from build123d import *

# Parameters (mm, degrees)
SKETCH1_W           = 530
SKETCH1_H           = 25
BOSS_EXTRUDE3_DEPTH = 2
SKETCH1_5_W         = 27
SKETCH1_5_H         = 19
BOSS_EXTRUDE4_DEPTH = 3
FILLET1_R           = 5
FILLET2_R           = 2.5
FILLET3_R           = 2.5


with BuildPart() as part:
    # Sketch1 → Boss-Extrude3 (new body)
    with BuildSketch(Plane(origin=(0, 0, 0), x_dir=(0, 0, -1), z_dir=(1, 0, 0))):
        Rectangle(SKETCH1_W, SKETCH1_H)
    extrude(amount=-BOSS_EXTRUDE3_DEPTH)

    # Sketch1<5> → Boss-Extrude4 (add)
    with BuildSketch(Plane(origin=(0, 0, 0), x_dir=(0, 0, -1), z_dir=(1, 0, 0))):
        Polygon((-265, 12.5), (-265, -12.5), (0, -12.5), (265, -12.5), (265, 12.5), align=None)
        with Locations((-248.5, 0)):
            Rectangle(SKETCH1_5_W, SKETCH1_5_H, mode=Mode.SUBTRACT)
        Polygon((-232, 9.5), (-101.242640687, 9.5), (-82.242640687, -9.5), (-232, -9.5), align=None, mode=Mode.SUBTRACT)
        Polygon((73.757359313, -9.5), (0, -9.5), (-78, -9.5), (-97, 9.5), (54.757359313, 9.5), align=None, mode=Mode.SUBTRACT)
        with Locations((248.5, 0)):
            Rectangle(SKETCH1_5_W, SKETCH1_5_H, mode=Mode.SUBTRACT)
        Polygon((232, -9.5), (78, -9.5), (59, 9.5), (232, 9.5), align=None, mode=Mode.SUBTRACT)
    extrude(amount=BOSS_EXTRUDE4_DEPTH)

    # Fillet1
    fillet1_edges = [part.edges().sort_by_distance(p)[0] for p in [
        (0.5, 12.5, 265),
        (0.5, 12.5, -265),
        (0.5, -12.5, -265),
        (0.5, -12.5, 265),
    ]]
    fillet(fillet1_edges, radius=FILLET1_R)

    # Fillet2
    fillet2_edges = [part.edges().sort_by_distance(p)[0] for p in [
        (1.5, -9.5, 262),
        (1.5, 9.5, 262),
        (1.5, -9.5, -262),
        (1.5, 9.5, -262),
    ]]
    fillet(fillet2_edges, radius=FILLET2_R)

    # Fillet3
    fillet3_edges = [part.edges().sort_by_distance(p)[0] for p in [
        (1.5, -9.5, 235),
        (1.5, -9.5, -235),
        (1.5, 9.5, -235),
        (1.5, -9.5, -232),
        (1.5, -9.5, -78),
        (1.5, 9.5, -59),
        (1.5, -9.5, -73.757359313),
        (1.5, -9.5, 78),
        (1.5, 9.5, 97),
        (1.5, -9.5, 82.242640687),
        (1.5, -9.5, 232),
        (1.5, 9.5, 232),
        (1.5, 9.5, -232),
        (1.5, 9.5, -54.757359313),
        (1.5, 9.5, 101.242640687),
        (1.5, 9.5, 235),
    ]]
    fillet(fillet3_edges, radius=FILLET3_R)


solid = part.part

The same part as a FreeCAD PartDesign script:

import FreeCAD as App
import Part
import Sketcher
Q = App.Units.Quantity


def edges_at(feature, points):
    """Names of the edges that pass closest to the given points."""
    edges = feature.Shape.Edges
    near = lambda p: min(range(len(edges)), key=lambda i: edges[i].distToShape(Part.Vertex(*p))[0])
    return sorted({f"Edge{near(p) + 1}" for p in points})

doc = App.newDocument("Part")
body = doc.addObject("PartDesign::Body", "Body")

sketch1 = body.newObject("Sketcher::SketchObject", "Sketch")
sketch1.AttachmentSupport = (doc.getObject("YZ_Plane"), [""])
sketch1.MapMode = "FlatFace"
sketch1.addGeometry([
    Part.LineSegment(App.Vector(12.5, 265, 0), App.Vector(-12.5, 265, 0)),
    Part.LineSegment(App.Vector(-12.5, 265, 0), App.Vector(-12.5, -265, 0)),
    Part.LineSegment(App.Vector(-12.5, -265, 0), App.Vector(12.5, -265, 0)),
    Part.LineSegment(App.Vector(12.5, -265, 0), App.Vector(12.5, 265, 0)),
], False)
sketch1.addConstraint([
    Sketcher.Constraint("Coincident", 0, 2, 1, 1),
    Sketcher.Constraint("Coincident", 1, 2, 2, 1),
    Sketcher.Constraint("Coincident", 2, 2, 3, 1),
    Sketcher.Constraint("Coincident", 3, 2, 0, 1),
    Sketcher.Constraint("Horizontal", 0),
    Sketcher.Constraint("Vertical", 1),
    Sketcher.Constraint("Horizontal", 2),
    Sketcher.Constraint("Vertical", 3),
    Sketcher.Constraint("Symmetric", 0, 2, 2, 2, -1, 1),
    Sketcher.Constraint("DistanceX", 0, 2, 0, 1, Q("25 mm")),
    Sketcher.Constraint("DistanceY", 1, 2, 1, 1, Q("530 mm")),
])
pad1 = body.newObject("PartDesign::Pad", "Pad")
pad1.Profile = sketch1
pad1.Length = 2
pad1.Reversed = True

sketch2 = body.newObject("Sketcher::SketchObject", "Sketch001")
sketch2.AttachmentSupport = (doc.getObject("YZ_Plane"), [""])
sketch2.MapMode = "FlatFace"
sketch2.addGeometry([
    Part.LineSegment(App.Vector(12.5, 265, 0), App.Vector(-12.5, 265, 0)),
    Part.LineSegment(App.Vector(-12.5, 265, 0), App.Vector(-12.5, -265, 0)),
    Part.LineSegment(App.Vector(-12.5, -265, 0), App.Vector(12.5, -265, 0)),
    Part.LineSegment(App.Vector(12.5, -265, 0), App.Vector(12.5, 265, 0)),
    Part.LineSegment(App.Vector(-9.5, 235, 0), App.Vector(-9.5, 262, 0)),
    Part.LineSegment(App.Vector(-9.5, 262, 0), App.Vector(9.5, 262, 0)),
    Part.LineSegment(App.Vector(9.5, 262, 0), App.Vector(9.5, 235, 0)),
    Part.LineSegment(App.Vector(9.5, 235, 0), App.Vector(-9.5, 235, 0)),
    Part.LineSegment(App.Vector(-9.5, 232, 0), App.Vector(9.5, 232, 0)),
    Part.LineSegment(App.Vector(9.5, 232, 0), App.Vector(9.5, 101.242641, 0)),
    Part.LineSegment(App.Vector(9.5, 101.242641, 0), App.Vector(-9.5, 82.242641, 0)),
    Part.LineSegment(App.Vector(-9.5, 82.242641, 0), App.Vector(-9.5, 232, 0)),
    Part.LineSegment(App.Vector(9.5, -54.757359, 0), App.Vector(-9.5, -73.757359, 0)),
    Part.LineSegment(App.Vector(-9.5, -73.757359, 0), App.Vector(-9.5, 78, 0)),
    Part.LineSegment(App.Vector(-9.5, 78, 0), App.Vector(9.5, 97, 0)),
    Part.LineSegment(App.Vector(9.5, 97, 0), App.Vector(9.5, -54.757359, 0)),
    Part.LineSegment(App.Vector(9.5, -232, 0), App.Vector(-9.5, -232, 0)),
    Part.LineSegment(App.Vector(-9.5, -232, 0), App.Vector(-9.5, -78, 0)),
    Part.LineSegment(App.Vector(-9.5, -78, 0), App.Vector(9.5, -59, 0)),
    Part.LineSegment(App.Vector(9.5, -59, 0), App.Vector(9.5, -232, 0)),
    Part.LineSegment(App.Vector(-9.5, -262, 0), App.Vector(-9.5, -235, 0)),
    Part.LineSegment(App.Vector(-9.5, -235, 0), App.Vector(9.5, -235, 0)),
    Part.LineSegment(App.Vector(9.5, -235, 0), App.Vector(9.5, -262, 0)),
    Part.LineSegment(App.Vector(9.5, -262, 0), App.Vector(-9.5, -262, 0)),
], False)
sketch2.addConstraint([
    Sketcher.Constraint("Coincident", 0, 2, 1, 1),
    Sketcher.Constraint("Coincident", 1, 2, 2, 1),
    Sketcher.Constraint("Coincident", 2, 2, 3, 1),
    Sketcher.Constraint("Coincident", 3, 2, 0, 1),
    Sketcher.Constraint("Coincident", 4, 2, 5, 1),
    Sketcher.Constraint("Coincident", 5, 2, 6, 1),
    Sketcher.Constraint("Coincident", 6, 2, 7, 1),
    Sketcher.Constraint("Coincident", 7, 2, 4, 1),
    Sketcher.Constraint("Coincident", 8, 2, 9, 1),
    Sketcher.Constraint("Coincident", 9, 2, 10, 1),
    Sketcher.Constraint("Coincident", 10, 2, 11, 1),
    Sketcher.Constraint("Coincident", 11, 2, 8, 1),
    Sketcher.Constraint("Coincident", 12, 2, 13, 1),
    Sketcher.Constraint("Coincident", 13, 2, 14, 1),
    Sketcher.Constraint("Coincident", 14, 2, 15, 1),
    Sketcher.Constraint("Coincident", 15, 2, 12, 1),
    Sketcher.Constraint("Coincident", 16, 2, 17, 1),
    Sketcher.Constraint("Coincident", 17, 2, 18, 1),
    Sketcher.Constraint("Coincident", 18, 2, 19, 1),
    Sketcher.Constraint("Coincident", 19, 2, 16, 1),
    Sketcher.Constraint("Coincident", 20, 2, 21, 1),
    Sketcher.Constraint("Coincident", 21, 2, 22, 1),
    Sketcher.Constraint("Coincident", 22, 2, 23, 1),
    Sketcher.Constraint("Coincident", 23, 2, 20, 1),
    Sketcher.Constraint("Horizontal", 0),
    Sketcher.Constraint("Vertical", 1),
    Sketcher.Constraint("Horizontal", 2),
    Sketcher.Constraint("Vertical", 3),
    Sketcher.Constraint("Vertical", 4),
    Sketcher.Constraint("Horizontal", 5),
    Sketcher.Constraint("Vertical", 6),
    Sketcher.Constraint("Horizontal", 7),
    Sketcher.Constraint("Horizontal", 8),
    Sketcher.Constraint("Vertical", 9),
    Sketcher.Constraint("Vertical", 11),
    Sketcher.Constraint("Vertical", 13),
    Sketcher.Constraint("Vertical", 15),
    Sketcher.Constraint("Horizontal", 16),
    Sketcher.Constraint("Vertical", 17),
    Sketcher.Constraint("Vertical", 19),
    Sketcher.Constraint("Vertical", 20),
    Sketcher.Constraint("Horizontal", 21),
    Sketcher.Constraint("Vertical", 22),
    Sketcher.Constraint("Horizontal", 23),
    Sketcher.Constraint("Symmetric", 0, 2, 2, 2, -1, 1),
    Sketcher.Constraint("Symmetric", 8, 2, 16, 2, -1, 1),
    Sketcher.Constraint("Symmetric", 6, 2, 20, 2, -1, 1),
    Sketcher.Constraint("Symmetric", 4, 2, 22, 2, -1, 1),
    Sketcher.Constraint("Symmetric", 13, 2, 17, 2, -1),
    Sketcher.Constraint("Parallel", 10, 12),
    Sketcher.Constraint("Parallel", 12, 14),
    Sketcher.Constraint("Parallel", 14, 18),
    Sketcher.Constraint("Vertical", 6, 2, 8, 2),
    Sketcher.Constraint("Vertical", 7, 2, 10, 2),
    Sketcher.Constraint("Vertical", 11, 2, 12, 2),
    Sketcher.Constraint("Vertical", 9, 2, 14, 2),
    Sketcher.Constraint("Vertical", 15, 2, 18, 2),
    Sketcher.Constraint("DistanceX", 0, 2, 0, 1, Q("25 mm")),
    Sketcher.Constraint("DistanceX", 5, 1, 5, 2, Q("19 mm")),
    Sketcher.Constraint("DistanceY", 1, 2, 1, 1, Q("530 mm")),
    Sketcher.Constraint("DistanceY", 4, 1, 4, 2, Q("27 mm")),
    Sketcher.Constraint("DistanceY", 17, 1, 17, 2, Q("154 mm")),
    Sketcher.Constraint("DistanceY", 19, 2, 19, 1, Q("173 mm")),
    Sketcher.Constraint("DistanceY", -1, 1, 4, 2, Q("262 mm")),
    Sketcher.Constraint("DistanceY", -1, 1, 8, 2, Q("232 mm")),
    Sketcher.Constraint("DistanceY", 12, 2, 10, 2, Q("156 mm")),
    Sketcher.Constraint("DistanceY", 9, 2, 9, 1, Q("130.757359 mm")),
])
pad2 = body.newObject("PartDesign::Pad", "Pad001")
pad2.Profile = sketch2
pad2.Length = 3
doc.recompute()

fillet = body.newObject("PartDesign::Fillet", "Fillet")
fillet.Base = (pad2, edges_at(pad2, [
    (0.5, 12.5, 265),
    (0.5, 12.5, -265),
    (0.5, -12.5, -265),
    (0.5, -12.5, 265),
]))
fillet.Radius = 5
doc.recompute()

fillet2 = body.newObject("PartDesign::Fillet", "Fillet001")
fillet2.Base = (fillet, edges_at(fillet, [
    (1.5, -9.5, 262),
    (1.5, 9.5, 262),
    (1.5, -9.5, -262),
    (1.5, 9.5, -262),
]))
fillet2.Radius = 2.5
doc.recompute()

fillet3 = body.newObject("PartDesign::Fillet", "Fillet002")
fillet3.Base = (fillet2, edges_at(fillet2, [
    (1.5, -9.5, 235),
    (1.5, -9.5, -235),
    (1.5, 9.5, -235),
    (1.5, -9.5, -232),
    (1.5, -9.5, -78),
    (1.5, 9.5, -59),
    (1.5, -9.5, -73.757),
    (1.5, -9.5, 78),
    (1.5, 9.5, 97),
    (1.5, -9.5, 82.243),
    (1.5, -9.5, 232),
    (1.5, 9.5, 232),
    (1.5, 9.5, -232),
    (1.5, 9.5, -54.757),
    (1.5, 9.5, 101.243),
    (1.5, 9.5, 235),
]))
fillet3.Radius = 2.5

doc.recompute()
